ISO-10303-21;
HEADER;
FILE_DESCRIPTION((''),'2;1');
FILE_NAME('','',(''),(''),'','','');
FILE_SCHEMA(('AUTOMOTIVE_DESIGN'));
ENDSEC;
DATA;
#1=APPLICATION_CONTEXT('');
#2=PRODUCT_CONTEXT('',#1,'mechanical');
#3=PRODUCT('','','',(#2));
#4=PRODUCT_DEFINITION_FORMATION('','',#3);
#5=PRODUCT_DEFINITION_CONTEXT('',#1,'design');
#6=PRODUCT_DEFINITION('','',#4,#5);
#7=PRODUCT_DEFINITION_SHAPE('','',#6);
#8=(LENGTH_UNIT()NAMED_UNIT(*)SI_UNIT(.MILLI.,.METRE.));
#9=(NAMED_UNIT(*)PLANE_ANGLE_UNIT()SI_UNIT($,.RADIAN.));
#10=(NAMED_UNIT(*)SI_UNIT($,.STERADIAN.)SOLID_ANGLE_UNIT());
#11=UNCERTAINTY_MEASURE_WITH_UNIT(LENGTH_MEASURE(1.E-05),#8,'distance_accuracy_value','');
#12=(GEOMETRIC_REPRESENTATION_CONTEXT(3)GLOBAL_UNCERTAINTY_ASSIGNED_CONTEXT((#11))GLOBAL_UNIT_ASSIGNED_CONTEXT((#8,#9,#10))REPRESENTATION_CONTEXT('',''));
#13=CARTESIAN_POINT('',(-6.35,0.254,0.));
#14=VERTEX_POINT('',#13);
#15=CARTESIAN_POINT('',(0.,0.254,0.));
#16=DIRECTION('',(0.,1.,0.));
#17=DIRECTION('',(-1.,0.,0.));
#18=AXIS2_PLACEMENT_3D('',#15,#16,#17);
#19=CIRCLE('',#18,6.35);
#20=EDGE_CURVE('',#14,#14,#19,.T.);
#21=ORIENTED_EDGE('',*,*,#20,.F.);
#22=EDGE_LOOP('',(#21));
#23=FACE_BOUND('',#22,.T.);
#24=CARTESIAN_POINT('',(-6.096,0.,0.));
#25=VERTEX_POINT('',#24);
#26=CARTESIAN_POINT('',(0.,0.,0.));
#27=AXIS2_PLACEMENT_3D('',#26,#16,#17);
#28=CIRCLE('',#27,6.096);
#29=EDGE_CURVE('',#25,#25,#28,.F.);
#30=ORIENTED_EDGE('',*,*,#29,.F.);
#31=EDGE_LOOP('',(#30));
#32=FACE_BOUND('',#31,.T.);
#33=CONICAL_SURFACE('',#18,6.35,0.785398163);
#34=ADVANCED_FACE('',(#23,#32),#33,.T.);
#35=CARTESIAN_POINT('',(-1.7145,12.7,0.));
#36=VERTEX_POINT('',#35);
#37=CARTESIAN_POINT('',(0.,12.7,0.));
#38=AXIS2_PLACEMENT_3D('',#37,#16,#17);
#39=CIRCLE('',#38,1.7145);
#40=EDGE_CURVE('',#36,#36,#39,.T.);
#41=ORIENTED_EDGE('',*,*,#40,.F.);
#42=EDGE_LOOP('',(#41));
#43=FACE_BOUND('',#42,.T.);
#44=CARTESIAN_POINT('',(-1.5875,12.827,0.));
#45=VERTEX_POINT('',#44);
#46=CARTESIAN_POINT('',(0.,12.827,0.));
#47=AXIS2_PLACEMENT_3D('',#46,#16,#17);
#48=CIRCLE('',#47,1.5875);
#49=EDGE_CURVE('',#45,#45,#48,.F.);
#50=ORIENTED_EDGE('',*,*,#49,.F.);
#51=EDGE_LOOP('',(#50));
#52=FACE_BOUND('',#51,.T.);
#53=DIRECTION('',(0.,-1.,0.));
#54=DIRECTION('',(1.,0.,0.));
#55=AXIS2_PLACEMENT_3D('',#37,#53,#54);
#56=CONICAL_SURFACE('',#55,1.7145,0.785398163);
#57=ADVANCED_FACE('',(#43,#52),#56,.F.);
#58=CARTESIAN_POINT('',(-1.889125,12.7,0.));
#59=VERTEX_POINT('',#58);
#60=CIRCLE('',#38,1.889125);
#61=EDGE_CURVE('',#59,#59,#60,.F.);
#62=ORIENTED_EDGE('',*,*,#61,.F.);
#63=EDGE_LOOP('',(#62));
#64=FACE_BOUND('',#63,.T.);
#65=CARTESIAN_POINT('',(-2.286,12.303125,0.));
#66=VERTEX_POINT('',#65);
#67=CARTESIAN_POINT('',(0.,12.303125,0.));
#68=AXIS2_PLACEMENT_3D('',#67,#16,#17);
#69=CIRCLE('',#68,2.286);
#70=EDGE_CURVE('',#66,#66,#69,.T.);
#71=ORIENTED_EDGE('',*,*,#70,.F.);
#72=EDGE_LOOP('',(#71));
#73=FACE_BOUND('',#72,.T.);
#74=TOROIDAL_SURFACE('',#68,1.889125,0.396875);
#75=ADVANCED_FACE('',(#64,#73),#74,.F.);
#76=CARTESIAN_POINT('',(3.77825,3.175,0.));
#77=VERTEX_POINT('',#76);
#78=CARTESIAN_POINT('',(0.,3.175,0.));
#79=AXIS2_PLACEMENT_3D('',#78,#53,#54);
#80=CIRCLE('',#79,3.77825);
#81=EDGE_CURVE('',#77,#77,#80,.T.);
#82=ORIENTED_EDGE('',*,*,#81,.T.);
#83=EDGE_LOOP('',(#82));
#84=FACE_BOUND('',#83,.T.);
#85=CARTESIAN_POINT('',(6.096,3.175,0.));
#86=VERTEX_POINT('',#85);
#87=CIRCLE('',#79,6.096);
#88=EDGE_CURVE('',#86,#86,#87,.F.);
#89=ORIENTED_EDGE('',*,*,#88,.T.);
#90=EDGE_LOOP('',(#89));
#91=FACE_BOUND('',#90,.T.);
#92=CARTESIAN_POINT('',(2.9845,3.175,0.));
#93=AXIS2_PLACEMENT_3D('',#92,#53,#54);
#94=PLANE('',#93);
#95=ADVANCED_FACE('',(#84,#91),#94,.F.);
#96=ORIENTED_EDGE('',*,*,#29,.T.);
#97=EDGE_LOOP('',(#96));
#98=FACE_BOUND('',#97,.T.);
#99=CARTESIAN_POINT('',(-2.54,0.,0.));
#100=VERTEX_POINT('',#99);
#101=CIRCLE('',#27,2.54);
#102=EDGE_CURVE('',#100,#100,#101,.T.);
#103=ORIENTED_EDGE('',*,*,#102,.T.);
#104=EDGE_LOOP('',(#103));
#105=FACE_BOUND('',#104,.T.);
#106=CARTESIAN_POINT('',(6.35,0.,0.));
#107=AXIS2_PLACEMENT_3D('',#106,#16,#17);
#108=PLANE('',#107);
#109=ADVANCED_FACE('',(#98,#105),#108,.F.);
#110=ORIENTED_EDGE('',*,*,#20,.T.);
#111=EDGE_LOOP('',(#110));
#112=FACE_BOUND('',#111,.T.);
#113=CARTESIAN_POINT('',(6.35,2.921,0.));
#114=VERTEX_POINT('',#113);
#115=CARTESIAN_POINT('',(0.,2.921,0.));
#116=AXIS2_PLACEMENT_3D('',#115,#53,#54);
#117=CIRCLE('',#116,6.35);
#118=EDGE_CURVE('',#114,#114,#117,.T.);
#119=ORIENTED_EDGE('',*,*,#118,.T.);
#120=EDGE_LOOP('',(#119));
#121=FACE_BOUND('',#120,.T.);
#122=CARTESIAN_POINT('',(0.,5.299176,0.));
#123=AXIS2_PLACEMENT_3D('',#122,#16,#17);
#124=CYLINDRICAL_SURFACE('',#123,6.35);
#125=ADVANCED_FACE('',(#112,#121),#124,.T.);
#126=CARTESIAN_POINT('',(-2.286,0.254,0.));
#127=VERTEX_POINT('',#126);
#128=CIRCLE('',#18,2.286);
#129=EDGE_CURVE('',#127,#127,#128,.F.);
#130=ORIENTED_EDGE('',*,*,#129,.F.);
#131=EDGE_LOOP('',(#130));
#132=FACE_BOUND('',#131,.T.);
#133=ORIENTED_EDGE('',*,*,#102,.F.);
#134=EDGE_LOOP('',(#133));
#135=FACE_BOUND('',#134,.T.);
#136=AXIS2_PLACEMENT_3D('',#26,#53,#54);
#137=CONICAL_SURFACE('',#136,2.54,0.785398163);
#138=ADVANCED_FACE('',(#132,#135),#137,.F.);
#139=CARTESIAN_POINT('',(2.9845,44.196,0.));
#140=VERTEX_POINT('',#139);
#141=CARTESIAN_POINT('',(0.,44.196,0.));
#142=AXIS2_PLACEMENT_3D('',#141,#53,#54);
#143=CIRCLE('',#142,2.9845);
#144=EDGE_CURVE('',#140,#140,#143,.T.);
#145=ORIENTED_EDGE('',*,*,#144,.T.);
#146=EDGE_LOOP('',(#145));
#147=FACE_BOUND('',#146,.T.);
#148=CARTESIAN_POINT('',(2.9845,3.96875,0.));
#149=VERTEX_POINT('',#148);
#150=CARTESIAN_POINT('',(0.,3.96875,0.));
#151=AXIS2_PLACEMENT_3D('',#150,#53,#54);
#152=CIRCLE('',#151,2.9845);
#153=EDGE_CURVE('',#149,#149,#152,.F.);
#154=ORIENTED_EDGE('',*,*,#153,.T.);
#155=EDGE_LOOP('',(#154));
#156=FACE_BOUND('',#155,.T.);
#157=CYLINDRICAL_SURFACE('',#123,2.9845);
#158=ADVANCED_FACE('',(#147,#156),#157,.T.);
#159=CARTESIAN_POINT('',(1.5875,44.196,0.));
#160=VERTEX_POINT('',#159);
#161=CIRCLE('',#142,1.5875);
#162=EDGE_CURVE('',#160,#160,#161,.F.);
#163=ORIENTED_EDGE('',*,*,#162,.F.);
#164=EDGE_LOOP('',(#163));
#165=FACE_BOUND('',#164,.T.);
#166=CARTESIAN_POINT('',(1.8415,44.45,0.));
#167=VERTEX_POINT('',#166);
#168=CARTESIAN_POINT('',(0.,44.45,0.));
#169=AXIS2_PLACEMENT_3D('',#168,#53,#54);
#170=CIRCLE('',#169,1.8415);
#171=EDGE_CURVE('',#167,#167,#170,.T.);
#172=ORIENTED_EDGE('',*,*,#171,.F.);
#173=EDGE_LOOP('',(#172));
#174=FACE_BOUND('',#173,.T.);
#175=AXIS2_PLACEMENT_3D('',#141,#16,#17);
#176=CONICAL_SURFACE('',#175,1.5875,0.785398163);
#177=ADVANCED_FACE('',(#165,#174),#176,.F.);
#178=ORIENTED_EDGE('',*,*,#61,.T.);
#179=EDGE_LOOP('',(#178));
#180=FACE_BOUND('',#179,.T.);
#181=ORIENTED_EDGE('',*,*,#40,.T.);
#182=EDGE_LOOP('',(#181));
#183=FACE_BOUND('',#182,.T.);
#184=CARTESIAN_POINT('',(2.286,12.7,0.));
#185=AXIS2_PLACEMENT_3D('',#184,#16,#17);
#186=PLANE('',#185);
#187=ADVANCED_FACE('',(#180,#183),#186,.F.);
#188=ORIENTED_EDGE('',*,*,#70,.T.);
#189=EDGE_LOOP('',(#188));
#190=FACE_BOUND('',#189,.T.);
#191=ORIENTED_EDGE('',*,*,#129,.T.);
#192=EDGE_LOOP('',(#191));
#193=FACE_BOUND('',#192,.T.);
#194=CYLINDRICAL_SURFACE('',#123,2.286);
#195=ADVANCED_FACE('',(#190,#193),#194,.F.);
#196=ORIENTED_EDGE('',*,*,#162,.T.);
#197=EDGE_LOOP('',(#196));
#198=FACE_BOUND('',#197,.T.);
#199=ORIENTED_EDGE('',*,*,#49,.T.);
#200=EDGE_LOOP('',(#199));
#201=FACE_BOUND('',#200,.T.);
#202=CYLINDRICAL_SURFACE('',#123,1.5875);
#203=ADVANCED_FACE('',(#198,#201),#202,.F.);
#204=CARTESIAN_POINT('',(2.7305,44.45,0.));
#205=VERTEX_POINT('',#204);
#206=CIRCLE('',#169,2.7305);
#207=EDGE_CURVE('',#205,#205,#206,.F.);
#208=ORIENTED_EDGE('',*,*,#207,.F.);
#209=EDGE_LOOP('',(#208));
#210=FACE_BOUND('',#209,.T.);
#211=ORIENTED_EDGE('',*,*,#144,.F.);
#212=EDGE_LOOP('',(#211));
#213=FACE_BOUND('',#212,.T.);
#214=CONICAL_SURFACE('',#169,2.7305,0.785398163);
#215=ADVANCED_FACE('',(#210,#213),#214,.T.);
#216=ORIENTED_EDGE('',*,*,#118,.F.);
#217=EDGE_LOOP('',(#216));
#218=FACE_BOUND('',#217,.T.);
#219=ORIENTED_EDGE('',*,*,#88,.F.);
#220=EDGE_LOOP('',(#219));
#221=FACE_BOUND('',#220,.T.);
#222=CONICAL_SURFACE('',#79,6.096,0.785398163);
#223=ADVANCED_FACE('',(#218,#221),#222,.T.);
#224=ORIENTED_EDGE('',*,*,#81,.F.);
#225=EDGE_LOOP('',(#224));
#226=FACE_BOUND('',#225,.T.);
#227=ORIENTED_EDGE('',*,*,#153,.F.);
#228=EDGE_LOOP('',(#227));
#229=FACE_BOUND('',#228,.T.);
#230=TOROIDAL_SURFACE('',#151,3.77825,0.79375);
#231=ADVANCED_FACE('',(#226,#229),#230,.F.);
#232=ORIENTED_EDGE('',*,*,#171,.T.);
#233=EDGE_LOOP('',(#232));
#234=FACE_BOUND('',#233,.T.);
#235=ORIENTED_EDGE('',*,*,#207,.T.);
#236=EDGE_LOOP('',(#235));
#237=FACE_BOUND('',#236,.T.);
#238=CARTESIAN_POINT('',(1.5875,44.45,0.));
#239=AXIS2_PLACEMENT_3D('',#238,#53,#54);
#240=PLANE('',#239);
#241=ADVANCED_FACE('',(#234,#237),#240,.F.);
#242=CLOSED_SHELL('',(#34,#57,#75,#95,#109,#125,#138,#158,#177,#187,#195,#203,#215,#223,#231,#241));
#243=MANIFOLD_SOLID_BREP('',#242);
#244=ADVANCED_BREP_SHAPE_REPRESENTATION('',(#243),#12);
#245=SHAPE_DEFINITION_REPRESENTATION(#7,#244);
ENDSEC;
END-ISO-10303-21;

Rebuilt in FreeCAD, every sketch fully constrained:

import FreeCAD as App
import Part
import Sketcher
Q = App.Units.Quantity


def edges_at(feature, points):
    """Names of the edges that pass closest to the given points."""
    edges = feature.Shape.Edges
    near = lambda p: min(range(len(edges)), key=lambda i: edges[i].distToShape(Part.Vertex(*p))[0])
    return sorted({f"Edge{near(p) + 1}" for p in points})


def add_polygon(sketch, points):
    """Adds a closed chain of lines whose ends are joined by coincident constraints."""
    first, n = sketch.GeometryCount, len(points)
    for a, b in zip(points, points[1:] + points[:1]):
        sketch.addGeometry(Part.LineSegment(App.Vector(*a, 0), App.Vector(*b, 0)), False)
    for i in range(n):
        sketch.addConstraint(Sketcher.Constraint("Coincident", first + i, 2, first + (i + 1) % n, 1))

doc = App.newDocument("Part")
body = doc.addObject("PartDesign::Body", "Body")

sketch1 = body.newObject("Sketcher::SketchObject", "Sketch")
sketch1.AttachmentSupport = (doc.getObject("XY_Plane"), [""])
sketch1.MapMode = "FlatFace"
add_polygon(sketch1, [(2.3, 12.7), (2.3, 0), (6.3, 0), (6.3, 3.2), (3, 3.2), (3, 44.5), (1.6, 44.5), (1.6, 12.7)])
sketch1.addConstraint(Sketcher.Constraint("Vertical", 0))
sketch1.addConstraint(Sketcher.Constraint("Horizontal", 1))
sketch1.addConstraint(Sketcher.Constraint("Vertical", 2))
sketch1.addConstraint(Sketcher.Constraint("Horizontal", 3))
sketch1.addConstraint(Sketcher.Constraint("Vertical", 4))
sketch1.addConstraint(Sketcher.Constraint("Horizontal", 5))
sketch1.addConstraint(Sketcher.Constraint("Vertical", 6))
sketch1.addConstraint(Sketcher.Constraint("Horizontal", 7))
sketch1.addConstraint(Sketcher.Constraint("PointOnObject", 0, 2, -1))
sketch1.addConstraint(Sketcher.Constraint("DistanceY", 0, 2, 0, 1, Q("0.5 in")))
sketch1.addConstraint(Sketcher.Constraint("DistanceX", 1, 1, 1, 2, Q("0.16 in")))
sketch1.addConstraint(Sketcher.Constraint("DistanceY", 6, 2, 6, 1, Q("1.25 in")))
sketch1.addConstraint(Sketcher.Constraint("DistanceX", 5, 2, 5, 1, Q("0.055 in")))
sketch1.addConstraint(Sketcher.Constraint("DistanceY", 2, 1, 2, 2, Q("0.125 in")))
sketch1.addConstraint(Sketcher.Constraint("DistanceX", -1, 1, 0, 2, Q("0.09 in")))
sketch1.addConstraint(Sketcher.Constraint("DistanceX", 3, 2, 3, 1, Q("0.1325 in")))
revolution = body.newObject("PartDesign::Revolution", "Revolution")
revolution.Profile = sketch1
revolution.ReferenceAxis = (sketch1, ["V_Axis"])
revolution.Angle = 360
doc.recompute()

fillet = body.newObject("PartDesign::Fillet", "Fillet")
fillet.Base = (revolution, edges_at(revolution, [(-2.286, 12.7, 0)]))
fillet.Radius = Q("0.015625 in")
doc.recompute()

fillet2 = body.newObject("PartDesign::Fillet", "Fillet001")
fillet2.Base = (fillet, edges_at(fillet, [(-2.985, 3.175, 0)]))
fillet2.Radius = Q("0.03125 in")
doc.recompute()

chamfer = body.newObject("PartDesign::Chamfer", "Chamfer")
chamfer.Base = (fillet2, edges_at(fillet2, [
    (-6.35, 0, 0),
    (-6.35, 3.175, 0),
    (-2.985, 44.45, 0),
    (-1.587, 44.45, 0),
    (-2.286, 0, 0),
]))
chamfer.Size = Q("0.01 in")
doc.recompute()

chamfer2 = body.newObject("PartDesign::Chamfer", "Chamfer001")
chamfer2.Base = (chamfer, edges_at(chamfer, [(-1.587, 12.7, 0)]))
chamfer2.Size = Q("0.005 in")

doc.recompute()
